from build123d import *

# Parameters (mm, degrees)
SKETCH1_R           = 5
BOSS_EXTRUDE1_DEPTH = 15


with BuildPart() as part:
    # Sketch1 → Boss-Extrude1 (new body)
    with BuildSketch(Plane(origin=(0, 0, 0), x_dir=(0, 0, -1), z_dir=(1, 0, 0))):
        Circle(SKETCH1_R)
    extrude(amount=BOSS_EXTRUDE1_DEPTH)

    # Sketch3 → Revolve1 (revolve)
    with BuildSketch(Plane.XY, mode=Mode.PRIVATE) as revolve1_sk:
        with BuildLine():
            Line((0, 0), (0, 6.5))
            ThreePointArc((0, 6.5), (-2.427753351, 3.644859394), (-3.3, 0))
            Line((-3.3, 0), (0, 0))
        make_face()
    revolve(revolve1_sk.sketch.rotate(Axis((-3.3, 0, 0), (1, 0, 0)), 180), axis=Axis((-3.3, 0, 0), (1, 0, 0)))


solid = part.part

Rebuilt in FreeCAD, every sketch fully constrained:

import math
import FreeCAD as App
import Part
import Sketcher
from FreeCAD import Vector
Q = App.Units.Quantity

doc = App.newDocument("Part")
body = doc.addObject("PartDesign::Body", "Body")

sketch1 = body.newObject("Sketcher::SketchObject", "Sketch")
sketch1.AttachmentSupport = (doc.getObject("YZ_Plane"), [""])
sketch1.MapMode = "FlatFace"
sketch1.addGeometry(Part.Circle(Vector(0, 0, 0), Vector(0, 0, 1), 5), False)
sketch1.addConstraint(Sketcher.Constraint("Coincident", 0, 3, -1, 1))
sketch1.addConstraint(Sketcher.Constraint("Diameter", 0, Q("10 mm")))
pad1 = body.newObject("PartDesign::Pad", "Pad")
pad1.Profile = sketch1
pad1.Length = 15

sketch2 = body.newObject("Sketcher::SketchObject", "Sketch001")
sketch2.AttachmentSupport = (doc.getObject("XY_Plane"), [""])
sketch2.MapMode = "FlatFace"
sketch2.addGeometry(Part.LineSegment(Vector(0, 0, 0), Vector(0, 6.5, 0)), False)
sketch2.addGeometry(Part.ArcOfCircle(Part.Circle(Vector(4.751515, 0, 0), Vector(0, 0, 1), 8.051515), math.radians(126.166891), math.radians(180)), False)
sketch2.addGeometry(Part.LineSegment(Vector(-3.3, 0, 0), Vector(0, 0, 0)), False)
sketch2.addConstraint(Sketcher.Constraint("Coincident", 0, 2, 1, 1))
sketch2.addConstraint(Sketcher.Constraint("Coincident", 1, 2, 2, 1))
sketch2.addConstraint(Sketcher.Constraint("Coincident", 2, 2, 0, 1))
sketch2.addConstraint(Sketcher.Constraint("Vertical", 0))
sketch2.addConstraint(Sketcher.Constraint("Horizontal", 2))
sketch2.addConstraint(Sketcher.Constraint("Coincident", 2, 2, -1, 1))
sketch2.addConstraint(Sketcher.Constraint("PointOnObject", 1, 3, -1))
sketch2.addConstraint(Sketcher.Constraint("DistanceX", 2, 1, 2, 2, Q("3.3 mm")))
sketch2.addConstraint(Sketcher.Constraint("DistanceY", 0, 1, 0, 2, Q("6.5 mm")))
revolution = body.newObject("PartDesign::Revolution", "Revolution")
revolution.Profile = sketch2
revolution.ReferenceAxis = (sketch2, ["H_Axis"])
revolution.Angle = 360

doc.recompute()
